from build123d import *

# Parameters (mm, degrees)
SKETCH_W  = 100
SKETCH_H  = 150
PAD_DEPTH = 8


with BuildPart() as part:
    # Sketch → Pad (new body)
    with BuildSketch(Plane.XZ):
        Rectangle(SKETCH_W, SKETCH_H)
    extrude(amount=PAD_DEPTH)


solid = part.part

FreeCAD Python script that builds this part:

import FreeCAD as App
import Part
import Sketcher

V = App.Vector

doc = App.newDocument("Part")
body = doc.addObject("PartDesign::Body", "Body")

# Sketch on XZ plane
sketch1 = body.newObject("Sketcher::SketchObject", "Sketch")
sketch1.AttachmentSupport = (doc.getObject("XZ_Plane"), [""])
sketch1.MapMode = "FlatFace"
sketch1.addGeometry(Part.LineSegment(V(-50, 75, 0), V(-50, -75, 0)), False)
sketch1.addGeometry(Part.LineSegment(V(-50, -75, 0), V(50, -75, 0)), False)
sketch1.addGeometry(Part.LineSegment(V(50, -75, 0), V(50, 75, 0)), False)
sketch1.addGeometry(Part.LineSegment(V(50, 75, 0), V(-50, 75, 0)), False)
sketch1.addConstraint(Sketcher.Constraint("Coincident", 0, 2, 1, 1))
sketch1.addConstraint(Sketcher.Constraint("Coincident", 1, 2, 2, 1))
sketch1.addConstraint(Sketcher.Constraint("Coincident", 2, 2, 3, 1))
sketch1.addConstraint(Sketcher.Constraint("Coincident", 3, 2, 0, 1))
sketch1.addConstraint(Sketcher.Constraint("Vertical", 0))
sketch1.addConstraint(Sketcher.Constraint("Horizontal", 1))
sketch1.addConstraint(Sketcher.Constraint("Vertical", 2))
sketch1.addConstraint(Sketcher.Constraint("Horizontal", 3))
sketch1.addConstraint(Sketcher.Constraint("Symmetric", 0, 2, 2, 2, -1, 1))
sketch1.addConstraint(Sketcher.Constraint("DistanceX", 1, 1, 1, 2, 100.0))
sketch1.addConstraint(Sketcher.Constraint("DistanceY", 0, 2, 0, 1, 150.0))
pad1 = body.newObject("PartDesign::Pad", "Pad")
pad1.Profile = sketch1
pad1.Length = 8

doc.recompute()
